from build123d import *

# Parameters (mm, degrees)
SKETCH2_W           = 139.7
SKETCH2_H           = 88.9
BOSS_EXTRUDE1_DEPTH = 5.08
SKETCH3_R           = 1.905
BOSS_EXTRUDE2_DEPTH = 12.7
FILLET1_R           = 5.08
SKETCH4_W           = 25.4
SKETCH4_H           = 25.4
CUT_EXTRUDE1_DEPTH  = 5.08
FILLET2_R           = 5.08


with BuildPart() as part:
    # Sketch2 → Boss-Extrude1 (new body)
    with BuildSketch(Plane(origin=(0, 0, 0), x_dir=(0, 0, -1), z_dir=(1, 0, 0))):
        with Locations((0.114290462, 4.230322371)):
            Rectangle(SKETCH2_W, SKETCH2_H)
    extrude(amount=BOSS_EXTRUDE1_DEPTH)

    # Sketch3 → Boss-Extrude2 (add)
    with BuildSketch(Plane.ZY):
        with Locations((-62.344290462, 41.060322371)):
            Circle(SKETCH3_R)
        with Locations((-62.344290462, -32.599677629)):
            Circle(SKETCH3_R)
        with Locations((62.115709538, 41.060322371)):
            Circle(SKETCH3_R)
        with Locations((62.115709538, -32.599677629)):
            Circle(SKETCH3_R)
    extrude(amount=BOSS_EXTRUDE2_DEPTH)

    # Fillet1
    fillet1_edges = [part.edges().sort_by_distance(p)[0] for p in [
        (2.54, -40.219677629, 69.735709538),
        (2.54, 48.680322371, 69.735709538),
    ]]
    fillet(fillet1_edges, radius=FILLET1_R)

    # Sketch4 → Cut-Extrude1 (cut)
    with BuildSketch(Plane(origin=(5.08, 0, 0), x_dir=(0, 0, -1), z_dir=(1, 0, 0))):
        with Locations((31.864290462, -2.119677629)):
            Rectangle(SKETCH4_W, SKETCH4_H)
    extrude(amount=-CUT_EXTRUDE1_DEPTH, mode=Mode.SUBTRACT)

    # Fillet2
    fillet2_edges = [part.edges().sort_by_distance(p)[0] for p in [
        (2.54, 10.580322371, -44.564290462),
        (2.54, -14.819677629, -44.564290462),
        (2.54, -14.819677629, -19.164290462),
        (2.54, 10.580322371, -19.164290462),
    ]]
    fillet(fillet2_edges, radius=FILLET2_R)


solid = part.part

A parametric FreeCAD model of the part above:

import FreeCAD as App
import Part
import Sketcher
from FreeCAD import Vector
Q = App.Units.Quantity


def edges_at(feature, points):
    """Names of the edges that pass closest to the given points."""
    edges = feature.Shape.Edges
    near = lambda p: min(range(len(edges)), key=lambda i: edges[i].distToShape(Part.Vertex(*p))[0])
    return sorted({f"Edge{near(p) + 1}" for p in points})


def add_polygon(sketch, points):
    """Adds a closed chain of lines whose ends are joined by coincident constraints."""
    first, n = sketch.GeometryCount, len(points)
    for a, b in zip(points, points[1:] + points[:1]):
        sketch.addGeometry(Part.LineSegment(App.Vector(*a, 0), App.Vector(*b, 0)), False)
    for i in range(n):
        sketch.addConstraint(Sketcher.Constraint("Coincident", first + i, 2, first + (i + 1) % n, 1))

doc = App.newDocument("Part")
body = doc.addObject("PartDesign::Body", "Body")

# Sketch on YZ plane
sketch1 = body.newObject("Sketcher::SketchObject", "Sketch")
sketch1.AttachmentSupport = (doc.getObject("YZ_Plane"), [""])
sketch1.MapMode = "FlatFace"
add_polygon(sketch1, [(49, 70), (-40, 70), (-40, -70), (49, -70)])  # lines 0-3
sketch1.addConstraint([
    Sketcher.Constraint("Horizontal", 0),
    Sketcher.Constraint("Vertical", 1),
    Sketcher.Constraint("Horizontal", 2),
    Sketcher.Constraint("Vertical", 3),
    Sketcher.Constraint("DistanceX", 0, 2, 0, 1, Q("3.5 in")),
    Sketcher.Constraint("DistanceY", 1, 2, 1, 1, Q("5.5 in")),
    Sketcher.Constraint("DistanceY", -1, 1, 0, 2, 69.73571),
    Sketcher.Constraint("DistanceX", 0, 2, -1, 1, 40.219678),
])
pad1 = body.newObject("PartDesign::Pad", "Pad")
pad1.Profile = sketch1
pad1.Length = Q("0.2 in")

# Sketch on YZ plane
sketch2 = body.newObject("Sketcher::SketchObject", "Sketch001")
sketch2.AttachmentSupport = (doc.getObject("YZ_Plane"), [""])
sketch2.MapMode = "FlatFace"
sketch2.addGeometry([
    Part.Circle(Vector(41.1, -62.3, 0), Vector(0, 0, 1), 1.9),
    Part.Circle(Vector(-32.6, -62.3, 0), Vector(0, 0, 1), 1.9),
    Part.Circle(Vector(41.1, 62.1, 0), Vector(0, 0, 1), 1.9),
    Part.Circle(Vector(-32.6, 62.1, 0), Vector(0, 0, 1), 1.9),
], False)
sketch2.addConstraint([
    Sketcher.Constraint("Equal", 0, 1),
    Sketcher.Constraint("Equal", 1, 2),
    Sketcher.Constraint("Equal", 2, 3),
    Sketcher.Constraint("Horizontal", 0, 3, 1, 3),
    Sketcher.Constraint("Horizontal", 2, 3, 3, 3),
    Sketcher.Constraint("Vertical", 0, 3, 2, 3),
    Sketcher.Constraint("Vertical", 1, 3, 3, 3),
    Sketcher.Constraint("Diameter", 0, Q("0.15 in")),
    Sketcher.Constraint("DistanceX", 1, 3, 0, 3, Q("2.9 in")),
    Sketcher.Constraint("DistanceY", 0, 3, 2, 3, Q("4.9 in")),
    Sketcher.Constraint("DistanceY", 0, 3, -1, 1, 62.34429),
    Sketcher.Constraint("DistanceX", -1, 1, 0, 3, 41.060322),
])
pad2 = body.newObject("PartDesign::Pad", "Pad001")
pad2.Profile = sketch2
pad2.Length = Q("0.5 in")
pad2.Reversed = True
doc.recompute()

fillet = body.newObject("PartDesign::Fillet", "Fillet")
fillet.Base = (pad2, edges_at(pad2, [(2.54, -40.22, 69.736), (2.54, 48.68, 69.736)]))
fillet.Radius = Q("0.2 in")

# Sketch on YZ plane
sketch3 = body.newObject("Sketcher::SketchObject", "Sketch002")
sketch3.AttachmentSupport = (doc.getObject("YZ_Plane"), [""])
sketch3.MapMode = "FlatFace"
sketch3.AttachmentOffset = App.Placement(Vector(0, 0, 0.2 * 25.4), App.Rotation())
add_polygon(sketch3, [(11, -19), (-15, -19), (-15, -45), (11, -45)])  # lines 0-3
sketch3.addConstraint([
    Sketcher.Constraint("Horizontal", 0),
    Sketcher.Constraint("Vertical", 1),
    Sketcher.Constraint("Horizontal", 2),
    Sketcher.Constraint("Vertical", 3),
    Sketcher.Constraint("Equal", 2, 1),
    Sketcher.Constraint("DistanceX", 0, 2, 0, 1, Q("1 in")),
    Sketcher.Constraint("DistanceY", 0, 2, -1, 1, 19.16429),
    Sketcher.Constraint("DistanceX", 0, 2, -1, 1, 14.819678),
])
pocket1 = body.newObject("PartDesign::Pocket", "Pocket")
pocket1.Profile = sketch3
pocket1.Length = Q("0.2 in")
doc.recompute()

fillet2 = body.newObject("PartDesign::Fillet", "Fillet001")
fillet2.Base = (pocket1, edges_at(pocket1, [
    (2.54, 10.58, -44.564),
    (2.54, -14.82, -44.564),
    (2.54, -14.82, -19.164),
    (2.54, 10.58, -19.164),
]))
fillet2.Radius = Q("0.2 in")

doc.recompute()
